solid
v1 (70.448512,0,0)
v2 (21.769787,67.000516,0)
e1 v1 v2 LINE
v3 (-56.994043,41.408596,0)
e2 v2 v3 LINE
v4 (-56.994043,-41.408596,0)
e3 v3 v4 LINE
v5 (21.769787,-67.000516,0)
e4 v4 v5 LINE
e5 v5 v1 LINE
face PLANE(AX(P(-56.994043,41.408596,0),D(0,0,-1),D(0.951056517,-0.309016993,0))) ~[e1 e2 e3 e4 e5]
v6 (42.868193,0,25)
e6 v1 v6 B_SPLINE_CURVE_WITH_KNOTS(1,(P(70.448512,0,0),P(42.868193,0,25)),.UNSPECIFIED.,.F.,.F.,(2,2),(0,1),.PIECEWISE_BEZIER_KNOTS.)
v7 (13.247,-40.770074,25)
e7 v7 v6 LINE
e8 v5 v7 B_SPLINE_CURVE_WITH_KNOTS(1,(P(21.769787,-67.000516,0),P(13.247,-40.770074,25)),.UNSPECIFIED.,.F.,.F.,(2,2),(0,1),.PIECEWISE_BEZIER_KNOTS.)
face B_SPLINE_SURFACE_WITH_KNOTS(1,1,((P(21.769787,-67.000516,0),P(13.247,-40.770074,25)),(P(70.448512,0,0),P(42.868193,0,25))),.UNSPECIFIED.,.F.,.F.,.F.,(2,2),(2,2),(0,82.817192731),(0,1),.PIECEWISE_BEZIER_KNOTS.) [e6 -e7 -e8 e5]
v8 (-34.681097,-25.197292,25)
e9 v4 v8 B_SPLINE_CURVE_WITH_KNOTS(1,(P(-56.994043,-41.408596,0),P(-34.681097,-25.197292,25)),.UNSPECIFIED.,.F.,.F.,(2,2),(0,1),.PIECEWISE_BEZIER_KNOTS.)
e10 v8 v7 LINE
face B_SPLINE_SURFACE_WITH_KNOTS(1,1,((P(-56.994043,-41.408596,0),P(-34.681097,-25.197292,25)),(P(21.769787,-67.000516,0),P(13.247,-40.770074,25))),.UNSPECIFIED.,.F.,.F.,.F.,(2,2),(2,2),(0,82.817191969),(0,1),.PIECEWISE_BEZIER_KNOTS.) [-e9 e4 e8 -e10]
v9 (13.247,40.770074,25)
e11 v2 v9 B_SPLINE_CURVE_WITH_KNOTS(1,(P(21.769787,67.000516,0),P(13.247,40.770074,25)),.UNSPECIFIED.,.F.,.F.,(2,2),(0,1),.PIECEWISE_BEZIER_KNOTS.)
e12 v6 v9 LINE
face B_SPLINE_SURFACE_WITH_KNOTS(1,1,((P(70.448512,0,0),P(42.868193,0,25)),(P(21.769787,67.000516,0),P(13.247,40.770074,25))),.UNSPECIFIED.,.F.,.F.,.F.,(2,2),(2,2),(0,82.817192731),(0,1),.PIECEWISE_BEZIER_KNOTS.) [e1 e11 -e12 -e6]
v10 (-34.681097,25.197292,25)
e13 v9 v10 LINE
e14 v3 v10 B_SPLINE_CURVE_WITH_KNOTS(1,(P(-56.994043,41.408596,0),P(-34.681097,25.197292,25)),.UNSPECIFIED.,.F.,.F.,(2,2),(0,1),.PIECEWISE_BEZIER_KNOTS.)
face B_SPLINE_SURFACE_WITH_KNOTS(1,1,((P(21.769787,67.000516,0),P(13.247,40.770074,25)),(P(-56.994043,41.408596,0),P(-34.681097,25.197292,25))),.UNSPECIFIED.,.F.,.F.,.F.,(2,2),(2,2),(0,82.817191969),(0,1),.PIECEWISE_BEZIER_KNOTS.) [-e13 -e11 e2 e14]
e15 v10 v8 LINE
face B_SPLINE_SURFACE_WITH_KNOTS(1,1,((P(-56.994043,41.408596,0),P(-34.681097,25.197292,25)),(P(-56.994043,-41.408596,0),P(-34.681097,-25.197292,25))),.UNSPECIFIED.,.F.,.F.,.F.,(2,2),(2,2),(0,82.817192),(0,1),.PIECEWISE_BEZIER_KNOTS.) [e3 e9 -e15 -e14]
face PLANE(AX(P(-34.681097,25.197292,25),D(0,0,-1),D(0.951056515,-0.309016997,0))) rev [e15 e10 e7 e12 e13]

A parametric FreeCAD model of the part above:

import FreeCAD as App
import Part
import Sketcher
from FreeCAD import Vector
Q = App.Units.Quantity

doc = App.newDocument("Part")
body = doc.addObject("PartDesign::Body", "Body")

# Sketch on XY plane
sketch1 = body.newObject("Sketcher::SketchObject", "Sketch")
sketch1.AttachmentSupport = (doc.getObject("XY_Plane"), [""])
sketch1.MapMode = "FlatFace"
sketch1.addGeometry(Part.LineSegment(Vector(-56.994043, 41.408596, 0), Vector(-56.994043, -41.408596, 0)), False)
sketch1.addGeometry(Part.LineSegment(Vector(-56.994043, -41.408596, 0), Vector(21.769787, -67.000516, 0)), False)
sketch1.addGeometry(Part.LineSegment(Vector(21.769787, -67.000516, 0), Vector(70.448512, 0, 0)), False)
sketch1.addGeometry(Part.LineSegment(Vector(70.448512, 0, 0), Vector(21.769787, 67.000516, 0)), False)
sketch1.addGeometry(Part.LineSegment(Vector(21.769787, 67.000516, 0), Vector(-56.994043, 41.408596, 0)), False)
sketch1.addConstraint(Sketcher.Constraint("Coincident", 0, 2, 1, 1))
sketch1.addConstraint(Sketcher.Constraint("Coincident", 1, 2, 2, 1))
sketch1.addConstraint(Sketcher.Constraint("Coincident", 2, 2, 3, 1))
sketch1.addConstraint(Sketcher.Constraint("Coincident", 3, 2, 4, 1))
sketch1.addConstraint(Sketcher.Constraint("Coincident", 4, 2, 0, 1))
sketch1.addConstraint(Sketcher.Constraint("Vertical", 0))
sketch1.addConstraint(Sketcher.Constraint("Symmetric", 1, 2, 3, 2, -1))
sketch1.addConstraint(Sketcher.Constraint("PointOnObject", 2, 2, -1))
sketch1.addConstraint(Sketcher.Constraint("Equal", 1, 2))
sketch1.addConstraint(Sketcher.Constraint("Equal", 3, 4))
sketch1.addConstraint(Sketcher.Constraint("Angle", 1, Q("-18 deg")))
sketch1.addConstraint(Sketcher.Constraint("Angle", 2, Q("54 deg")))
sketch1.addConstraint(Sketcher.Constraint("Distance", 1, Q("82.817192 mm")))
sketch1.addConstraint(Sketcher.Constraint("DistanceX", -1, 1, 2, 2, Q("70.448512 mm")))

# Sketch on XY plane
sketch2 = body.newObject("Sketcher::SketchObject", "Sketch001")
sketch2.AttachmentSupport = (doc.getObject("XY_Plane"), [""])
sketch2.MapMode = "FlatFace"
sketch2.AttachmentOffset = App.Placement(Vector(0, 0, 25), App.Rotation())
sketch2.addGeometry(Part.LineSegment(Vector(-34.681097, 25.197292, 0), Vector(-34.681097, -25.197292, 0)), False)
sketch2.addGeometry(Part.LineSegment(Vector(-34.681097, -25.197292, 0), Vector(13.247, -40.770074, 0)), False)
sketch2.addGeometry(Part.LineSegment(Vector(13.247, -40.770074, 0), Vector(42.868193, 0, 0)), False)
sketch2.addGeometry(Part.LineSegment(Vector(42.868193, 0, 0), Vector(13.247, 40.770074, 0)), False)
sketch2.addGeometry(Part.LineSegment(Vector(13.247, 40.770074, 0), Vector(-34.681097, 25.197292, 0)), False)
sketch2.addConstraint(Sketcher.Constraint("Coincident", 0, 2, 1, 1))
sketch2.addConstraint(Sketcher.Constraint("Coincident", 1, 2, 2, 1))
sketch2.addConstraint(Sketcher.Constraint("Coincident", 2, 2, 3, 1))
sketch2.addConstraint(Sketcher.Constraint("Coincident", 3, 2, 4, 1))
sketch2.addConstraint(Sketcher.Constraint("Coincident", 4, 2, 0, 1))
sketch2.addConstraint(Sketcher.Constraint("Vertical", 0))
sketch2.addConstraint(Sketcher.Constraint("Symmetric", 1, 2, 3, 2, -1))
sketch2.addConstraint(Sketcher.Constraint("PointOnObject", 2, 2, -1))
sketch2.addConstraint(Sketcher.Constraint("Equal", 1, 2))
sketch2.addConstraint(Sketcher.Constraint("Equal", 3, 4))
sketch2.addConstraint(Sketcher.Constraint("Angle", 1, Q("-17.999999 deg")))
sketch2.addConstraint(Sketcher.Constraint("Angle", 2, Q("54 deg")))
sketch2.addConstraint(Sketcher.Constraint("DistanceX", -1, 1, 1, 2, Q("13.247 mm")))
sketch2.addConstraint(Sketcher.Constraint("DistanceY", 0, 2, 0, 1, Q("50.394584 mm")))

additiveloft = body.newObject("PartDesign::AdditiveLoft", "AdditiveLoft")
additiveloft.Profile = sketch1
additiveloft.Sections = [sketch2]

doc.recompute()
